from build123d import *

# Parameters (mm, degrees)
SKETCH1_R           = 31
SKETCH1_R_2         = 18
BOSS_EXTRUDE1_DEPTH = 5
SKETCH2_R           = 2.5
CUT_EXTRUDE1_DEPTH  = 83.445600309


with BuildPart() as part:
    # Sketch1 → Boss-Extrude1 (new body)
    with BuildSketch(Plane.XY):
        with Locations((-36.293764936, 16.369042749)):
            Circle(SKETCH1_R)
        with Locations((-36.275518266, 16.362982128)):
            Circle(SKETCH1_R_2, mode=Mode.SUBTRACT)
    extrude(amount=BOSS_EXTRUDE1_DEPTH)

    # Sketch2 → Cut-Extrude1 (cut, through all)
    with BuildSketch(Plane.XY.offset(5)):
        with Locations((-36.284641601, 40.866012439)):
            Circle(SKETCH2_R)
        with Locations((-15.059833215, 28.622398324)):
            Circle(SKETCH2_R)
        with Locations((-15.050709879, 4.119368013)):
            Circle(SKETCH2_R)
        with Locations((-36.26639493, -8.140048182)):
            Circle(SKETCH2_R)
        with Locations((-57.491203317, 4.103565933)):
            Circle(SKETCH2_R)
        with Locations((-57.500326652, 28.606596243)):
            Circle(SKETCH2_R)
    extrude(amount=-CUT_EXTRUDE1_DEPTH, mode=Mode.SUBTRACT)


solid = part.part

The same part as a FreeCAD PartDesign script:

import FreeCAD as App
import Part
import Sketcher

V = App.Vector

doc = App.newDocument("Part")
params = doc.addObject("Spreadsheet::Sheet", "Params")
for row, (alias, value) in enumerate([
    ("sketch1_diameter", "62 mm"),
    ("sketch1_diameter2", "36 mm"),
    ("pad1_length", "5 mm"),
    ("sketch2_diameter", "5 mm"),
], start=1):
    params.set(f"A{row}", alias)
    params.set(f"B{row}", "=" + value)
    params.setAlias(f"B{row}", alias)

body = doc.addObject("PartDesign::Body", "Body")

# Sketch on XY plane
sketch1 = body.newObject("Sketcher::SketchObject", "Sketch")
sketch1.AttachmentSupport = (doc.getObject("XY_Plane"), [""])
sketch1.MapMode = "FlatFace"
sketch1.addGeometry([
    Part.Circle(V(-36, 16, 0), V(0, 0, 1), 31),
    Part.Circle(V(-36, 16, 0), V(0, 0, 1), 18),
], False)
sketch1.addConstraint([
    Sketcher.Constraint("Diameter", 0, 62.0),
    Sketcher.Constraint("Diameter", 1, 36.0),
    Sketcher.Constraint("DistanceX", 1, 3, -1, 1, 36.275518),
    Sketcher.Constraint("DistanceY", 1, 3, 0, 3, 0.006061),
    Sketcher.Constraint("DistanceX", 0, 3, -1, 1, 36.293765),
    Sketcher.Constraint("DistanceY", -1, 1, 0, 3, 16.369043),
])
sketch1.setExpression("Constraints[0]", "Params.sketch1_diameter")
sketch1.setExpression("Constraints[1]", "Params.sketch1_diameter2")
pad1 = body.newObject("PartDesign::Pad", "Pad")
pad1.Profile = sketch1
pad1.setExpression("Length", "Params.pad1_length")

# Sketch on XY plane
sketch2 = body.newObject("Sketcher::SketchObject", "Sketch001")
sketch2.AttachmentSupport = (doc.getObject("XY_Plane"), [""])
sketch2.MapMode = "FlatFace"
sketch2.AttachmentOffset = App.Placement(V(0, 0, 5), App.Rotation())
sketch2.addGeometry([
    Part.Circle(V(-36.3, 40.9, 0), V(0, 0, 1), 2.5),  # 0
    Part.Circle(V(-15.1, 28.6, 0), V(0, 0, 1), 2.5),  # 1
    Part.Circle(V(-15.1, 4.1, 0), V(0, 0, 1), 2.5),  # 2
    Part.Circle(V(-36.3, -8.1, 0), V(0, 0, 1), 2.5),  # 3
    Part.Circle(V(-57.5, 4.1, 0), V(0, 0, 1), 2.5),  # 4
    Part.Circle(V(-57.5, 28.6, 0), V(0, 0, 1), 2.5),  # 5
], False)
sketch2.addConstraint([
    Sketcher.Constraint("Equal", 0, 1),
    Sketcher.Constraint("Equal", 1, 2),
    Sketcher.Constraint("Equal", 2, 3),
    Sketcher.Constraint("Equal", 3, 4),
    Sketcher.Constraint("Equal", 4, 5),
    Sketcher.Constraint("Diameter", 0, 5.0),
    Sketcher.Constraint("DistanceY", -1, 1, 1, 3, 28.622398),
    Sketcher.Constraint("DistanceX", 0, 3, -1, 1, 36.284642),
    Sketcher.Constraint("DistanceX", 2, 3, -1, 1, 15.05071),
    Sketcher.Constraint("DistanceY", -1, 1, 2, 3, 4.119368),
    Sketcher.Constraint("DistanceY", 3, 3, -1, 1, 8.140048),
    Sketcher.Constraint("DistanceX", 0, 3, 1, 3, 21.224808),
    Sketcher.Constraint("DistanceX", 3, 3, 1, 3, 21.206562),
    Sketcher.Constraint("DistanceY", 3, 3, 0, 3, 49.006061),
    Sketcher.Constraint("DistanceX", 4, 3, 3, 3, 21.224808),
    Sketcher.Constraint("DistanceY", 4, 3, 5, 3, 24.50303),
    Sketcher.Constraint("DistanceX", 5, 3, 3, 3, 21.233932),
    Sketcher.Constraint("DistanceY", 2, 3, 5, 3, 24.487228),
])
sketch2.setExpression("Constraints[5]", "Params.sketch2_diameter")
pocket1 = body.newObject("PartDesign::Pocket", "Pocket")
pocket1.Profile = sketch2
pocket1.Type = "ThroughAll"

doc.recompute()
